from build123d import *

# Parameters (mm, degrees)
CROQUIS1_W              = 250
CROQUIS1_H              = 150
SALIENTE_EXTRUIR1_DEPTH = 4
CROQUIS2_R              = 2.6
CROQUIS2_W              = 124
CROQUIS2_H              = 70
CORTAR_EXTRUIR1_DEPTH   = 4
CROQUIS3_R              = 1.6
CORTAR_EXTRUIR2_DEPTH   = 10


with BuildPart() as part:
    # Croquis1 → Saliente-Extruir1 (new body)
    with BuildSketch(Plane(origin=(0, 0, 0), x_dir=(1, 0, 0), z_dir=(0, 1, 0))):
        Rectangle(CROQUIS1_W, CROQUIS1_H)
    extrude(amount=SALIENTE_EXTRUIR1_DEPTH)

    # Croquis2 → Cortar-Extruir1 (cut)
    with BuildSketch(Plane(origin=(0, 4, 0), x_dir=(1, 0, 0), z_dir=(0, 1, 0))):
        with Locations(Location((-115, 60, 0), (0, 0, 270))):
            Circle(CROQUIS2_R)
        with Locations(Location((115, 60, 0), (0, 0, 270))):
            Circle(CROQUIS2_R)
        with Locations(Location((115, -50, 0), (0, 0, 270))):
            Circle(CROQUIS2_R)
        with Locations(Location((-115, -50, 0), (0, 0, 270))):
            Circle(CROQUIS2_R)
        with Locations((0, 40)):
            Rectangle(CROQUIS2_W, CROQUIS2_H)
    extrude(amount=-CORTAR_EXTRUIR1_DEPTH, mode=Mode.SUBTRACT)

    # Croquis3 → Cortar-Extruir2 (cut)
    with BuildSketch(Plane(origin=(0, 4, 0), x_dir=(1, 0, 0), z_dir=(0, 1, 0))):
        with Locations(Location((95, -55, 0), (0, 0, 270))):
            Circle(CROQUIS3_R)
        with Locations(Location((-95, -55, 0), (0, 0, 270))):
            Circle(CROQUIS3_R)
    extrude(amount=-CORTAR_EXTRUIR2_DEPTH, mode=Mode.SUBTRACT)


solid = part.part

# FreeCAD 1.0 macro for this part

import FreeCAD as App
import Part
import Sketcher

V = App.Vector

doc = App.newDocument("Part")
body = doc.addObject("PartDesign::Body", "Body")

# Sketch on XZ plane
sketch1 = body.newObject("Sketcher::SketchObject", "Sketch")
sketch1.AttachmentSupport = (doc.getObject("XZ_Plane"), [""])
sketch1.MapMode = "FlatFace"
sketch1.addGeometry([
    Part.LineSegment(V(-125, -75, 0), V(-125, 75, 0)),
    Part.LineSegment(V(-125, 75, 0), V(125, 75, 0)),
    Part.LineSegment(V(125, 75, 0), V(125, -75, 0)),
    Part.LineSegment(V(125, -75, 0), V(-125, -75, 0)),
], False)
sketch1.addConstraint([
    Sketcher.Constraint("Coincident", 0, 2, 1, 1),
    Sketcher.Constraint("Coincident", 1, 2, 2, 1),
    Sketcher.Constraint("Coincident", 2, 2, 3, 1),
    Sketcher.Constraint("Coincident", 3, 2, 0, 1),
    Sketcher.Constraint("Vertical", 0),
    Sketcher.Constraint("Horizontal", 1),
    Sketcher.Constraint("Vertical", 2),
    Sketcher.Constraint("Horizontal", 3),
    Sketcher.Constraint("Symmetric", 0, 2, 2, 2, -1, 1),
    Sketcher.Constraint("DistanceX", 1, 1, 1, 2, 250.0),
    Sketcher.Constraint("DistanceY", 0, 1, 0, 2, 150.0),
])
pad1 = body.newObject("PartDesign::Pad", "Pad")
pad1.Profile = sketch1
pad1.Length = 4
pad1.Reversed = True

# Sketch on XZ plane
sketch2 = body.newObject("Sketcher::SketchObject", "Sketch001")
sketch2.AttachmentSupport = (doc.getObject("XZ_Plane"), [""])
sketch2.MapMode = "FlatFace"
sketch2.AttachmentOffset = App.Placement(V(0, 0, -4), App.Rotation())
sketch2.addGeometry([
    Part.Circle(V(-115, -60, 0), V(0, 0, 1), 2.6),  # 0
    Part.Circle(V(115, -60, 0), V(0, 0, 1), 2.6),  # 1
    Part.Circle(V(115, 50, 0), V(0, 0, 1), 2.6),  # 2
    Part.Circle(V(-115, 50, 0), V(0, 0, 1), 2.6),  # 3
    Part.LineSegment(V(-62, -75, 0), V(-62, -5, 0)),  # 4
    Part.LineSegment(V(-62, -5, 0), V(62, -5, 0)),  # 5
    Part.LineSegment(V(62, -5, 0), V(62, -75, 0)),  # 6
    Part.LineSegment(V(62, -75, 0), V(-62, -75, 0)),  # 7
], False)
sketch2.addConstraint([
    Sketcher.Constraint("Coincident", 4, 2, 5, 1),
    Sketcher.Constraint("Coincident", 5, 2, 6, 1),
    Sketcher.Constraint("Coincident", 6, 2, 7, 1),
    Sketcher.Constraint("Coincident", 7, 2, 4, 1),
    Sketcher.Constraint("Vertical", 4),
    Sketcher.Constraint("Horizontal", 5),
    Sketcher.Constraint("Vertical", 6),
    Sketcher.Constraint("Horizontal", 7),
    Sketcher.Constraint("Equal", 0, 1),
    Sketcher.Constraint("Equal", 1, 2),
    Sketcher.Constraint("Equal", 2, 3),
    Sketcher.Constraint("Symmetric", 0, 3, 1, 3, -2),
    Sketcher.Constraint("Symmetric", 2, 3, 3, 3, -2),
    Sketcher.Constraint("Vertical", 1, 3, 2, 3),
    Sketcher.Constraint("Diameter", 0, 5.2),
    Sketcher.Constraint("DistanceX", 5, 1, 5, 2, 124.0),
    Sketcher.Constraint("DistanceY", 4, 1, 4, 2, 70.0),
    Sketcher.Constraint("DistanceX", 0, 3, -1, 1, 115.0),
    Sketcher.Constraint("DistanceY", 0, 3, -1, 1, 60.0),
    Sketcher.Constraint("DistanceY", -1, 1, 2, 3, 50.0),
    Sketcher.Constraint("DistanceX", 4, 2, -1, 1, 62.0),
    Sketcher.Constraint("DistanceY", 4, 2, -1, 1, 5.0),
])
pocket1 = body.newObject("PartDesign::Pocket", "Pocket")
pocket1.Profile = sketch2
pocket1.Length = 4
pocket1.Reversed = True

# Sketch on XZ plane
sketch3 = body.newObject("Sketcher::SketchObject", "Sketch002")
sketch3.AttachmentSupport = (doc.getObject("XZ_Plane"), [""])
sketch3.MapMode = "FlatFace"
sketch3.AttachmentOffset = App.Placement(V(0, 0, -4), App.Rotation())
sketch3.addGeometry([
    Part.Circle(V(95, 55, 0), V(0, 0, 1), 1.6),
    Part.Circle(V(-95, 55, 0), V(0, 0, 1), 1.6),
], False)
sketch3.addConstraint([
    Sketcher.Constraint("Equal", 0, 1),
    Sketcher.Constraint("Symmetric", 0, 3, 1, 3, -2),
    Sketcher.Constraint("Diameter", 0, 3.2),
    Sketcher.Constraint("DistanceX", -1, 1, 0, 3, 95.0),
    Sketcher.Constraint("DistanceY", -1, 1, 0, 3, 55.0),
])
pocket2 = body.newObject("PartDesign::Pocket", "Pocket001")
pocket2.Profile = sketch3
pocket2.Length = 10
pocket2.Reversed = True

doc.recompute()
